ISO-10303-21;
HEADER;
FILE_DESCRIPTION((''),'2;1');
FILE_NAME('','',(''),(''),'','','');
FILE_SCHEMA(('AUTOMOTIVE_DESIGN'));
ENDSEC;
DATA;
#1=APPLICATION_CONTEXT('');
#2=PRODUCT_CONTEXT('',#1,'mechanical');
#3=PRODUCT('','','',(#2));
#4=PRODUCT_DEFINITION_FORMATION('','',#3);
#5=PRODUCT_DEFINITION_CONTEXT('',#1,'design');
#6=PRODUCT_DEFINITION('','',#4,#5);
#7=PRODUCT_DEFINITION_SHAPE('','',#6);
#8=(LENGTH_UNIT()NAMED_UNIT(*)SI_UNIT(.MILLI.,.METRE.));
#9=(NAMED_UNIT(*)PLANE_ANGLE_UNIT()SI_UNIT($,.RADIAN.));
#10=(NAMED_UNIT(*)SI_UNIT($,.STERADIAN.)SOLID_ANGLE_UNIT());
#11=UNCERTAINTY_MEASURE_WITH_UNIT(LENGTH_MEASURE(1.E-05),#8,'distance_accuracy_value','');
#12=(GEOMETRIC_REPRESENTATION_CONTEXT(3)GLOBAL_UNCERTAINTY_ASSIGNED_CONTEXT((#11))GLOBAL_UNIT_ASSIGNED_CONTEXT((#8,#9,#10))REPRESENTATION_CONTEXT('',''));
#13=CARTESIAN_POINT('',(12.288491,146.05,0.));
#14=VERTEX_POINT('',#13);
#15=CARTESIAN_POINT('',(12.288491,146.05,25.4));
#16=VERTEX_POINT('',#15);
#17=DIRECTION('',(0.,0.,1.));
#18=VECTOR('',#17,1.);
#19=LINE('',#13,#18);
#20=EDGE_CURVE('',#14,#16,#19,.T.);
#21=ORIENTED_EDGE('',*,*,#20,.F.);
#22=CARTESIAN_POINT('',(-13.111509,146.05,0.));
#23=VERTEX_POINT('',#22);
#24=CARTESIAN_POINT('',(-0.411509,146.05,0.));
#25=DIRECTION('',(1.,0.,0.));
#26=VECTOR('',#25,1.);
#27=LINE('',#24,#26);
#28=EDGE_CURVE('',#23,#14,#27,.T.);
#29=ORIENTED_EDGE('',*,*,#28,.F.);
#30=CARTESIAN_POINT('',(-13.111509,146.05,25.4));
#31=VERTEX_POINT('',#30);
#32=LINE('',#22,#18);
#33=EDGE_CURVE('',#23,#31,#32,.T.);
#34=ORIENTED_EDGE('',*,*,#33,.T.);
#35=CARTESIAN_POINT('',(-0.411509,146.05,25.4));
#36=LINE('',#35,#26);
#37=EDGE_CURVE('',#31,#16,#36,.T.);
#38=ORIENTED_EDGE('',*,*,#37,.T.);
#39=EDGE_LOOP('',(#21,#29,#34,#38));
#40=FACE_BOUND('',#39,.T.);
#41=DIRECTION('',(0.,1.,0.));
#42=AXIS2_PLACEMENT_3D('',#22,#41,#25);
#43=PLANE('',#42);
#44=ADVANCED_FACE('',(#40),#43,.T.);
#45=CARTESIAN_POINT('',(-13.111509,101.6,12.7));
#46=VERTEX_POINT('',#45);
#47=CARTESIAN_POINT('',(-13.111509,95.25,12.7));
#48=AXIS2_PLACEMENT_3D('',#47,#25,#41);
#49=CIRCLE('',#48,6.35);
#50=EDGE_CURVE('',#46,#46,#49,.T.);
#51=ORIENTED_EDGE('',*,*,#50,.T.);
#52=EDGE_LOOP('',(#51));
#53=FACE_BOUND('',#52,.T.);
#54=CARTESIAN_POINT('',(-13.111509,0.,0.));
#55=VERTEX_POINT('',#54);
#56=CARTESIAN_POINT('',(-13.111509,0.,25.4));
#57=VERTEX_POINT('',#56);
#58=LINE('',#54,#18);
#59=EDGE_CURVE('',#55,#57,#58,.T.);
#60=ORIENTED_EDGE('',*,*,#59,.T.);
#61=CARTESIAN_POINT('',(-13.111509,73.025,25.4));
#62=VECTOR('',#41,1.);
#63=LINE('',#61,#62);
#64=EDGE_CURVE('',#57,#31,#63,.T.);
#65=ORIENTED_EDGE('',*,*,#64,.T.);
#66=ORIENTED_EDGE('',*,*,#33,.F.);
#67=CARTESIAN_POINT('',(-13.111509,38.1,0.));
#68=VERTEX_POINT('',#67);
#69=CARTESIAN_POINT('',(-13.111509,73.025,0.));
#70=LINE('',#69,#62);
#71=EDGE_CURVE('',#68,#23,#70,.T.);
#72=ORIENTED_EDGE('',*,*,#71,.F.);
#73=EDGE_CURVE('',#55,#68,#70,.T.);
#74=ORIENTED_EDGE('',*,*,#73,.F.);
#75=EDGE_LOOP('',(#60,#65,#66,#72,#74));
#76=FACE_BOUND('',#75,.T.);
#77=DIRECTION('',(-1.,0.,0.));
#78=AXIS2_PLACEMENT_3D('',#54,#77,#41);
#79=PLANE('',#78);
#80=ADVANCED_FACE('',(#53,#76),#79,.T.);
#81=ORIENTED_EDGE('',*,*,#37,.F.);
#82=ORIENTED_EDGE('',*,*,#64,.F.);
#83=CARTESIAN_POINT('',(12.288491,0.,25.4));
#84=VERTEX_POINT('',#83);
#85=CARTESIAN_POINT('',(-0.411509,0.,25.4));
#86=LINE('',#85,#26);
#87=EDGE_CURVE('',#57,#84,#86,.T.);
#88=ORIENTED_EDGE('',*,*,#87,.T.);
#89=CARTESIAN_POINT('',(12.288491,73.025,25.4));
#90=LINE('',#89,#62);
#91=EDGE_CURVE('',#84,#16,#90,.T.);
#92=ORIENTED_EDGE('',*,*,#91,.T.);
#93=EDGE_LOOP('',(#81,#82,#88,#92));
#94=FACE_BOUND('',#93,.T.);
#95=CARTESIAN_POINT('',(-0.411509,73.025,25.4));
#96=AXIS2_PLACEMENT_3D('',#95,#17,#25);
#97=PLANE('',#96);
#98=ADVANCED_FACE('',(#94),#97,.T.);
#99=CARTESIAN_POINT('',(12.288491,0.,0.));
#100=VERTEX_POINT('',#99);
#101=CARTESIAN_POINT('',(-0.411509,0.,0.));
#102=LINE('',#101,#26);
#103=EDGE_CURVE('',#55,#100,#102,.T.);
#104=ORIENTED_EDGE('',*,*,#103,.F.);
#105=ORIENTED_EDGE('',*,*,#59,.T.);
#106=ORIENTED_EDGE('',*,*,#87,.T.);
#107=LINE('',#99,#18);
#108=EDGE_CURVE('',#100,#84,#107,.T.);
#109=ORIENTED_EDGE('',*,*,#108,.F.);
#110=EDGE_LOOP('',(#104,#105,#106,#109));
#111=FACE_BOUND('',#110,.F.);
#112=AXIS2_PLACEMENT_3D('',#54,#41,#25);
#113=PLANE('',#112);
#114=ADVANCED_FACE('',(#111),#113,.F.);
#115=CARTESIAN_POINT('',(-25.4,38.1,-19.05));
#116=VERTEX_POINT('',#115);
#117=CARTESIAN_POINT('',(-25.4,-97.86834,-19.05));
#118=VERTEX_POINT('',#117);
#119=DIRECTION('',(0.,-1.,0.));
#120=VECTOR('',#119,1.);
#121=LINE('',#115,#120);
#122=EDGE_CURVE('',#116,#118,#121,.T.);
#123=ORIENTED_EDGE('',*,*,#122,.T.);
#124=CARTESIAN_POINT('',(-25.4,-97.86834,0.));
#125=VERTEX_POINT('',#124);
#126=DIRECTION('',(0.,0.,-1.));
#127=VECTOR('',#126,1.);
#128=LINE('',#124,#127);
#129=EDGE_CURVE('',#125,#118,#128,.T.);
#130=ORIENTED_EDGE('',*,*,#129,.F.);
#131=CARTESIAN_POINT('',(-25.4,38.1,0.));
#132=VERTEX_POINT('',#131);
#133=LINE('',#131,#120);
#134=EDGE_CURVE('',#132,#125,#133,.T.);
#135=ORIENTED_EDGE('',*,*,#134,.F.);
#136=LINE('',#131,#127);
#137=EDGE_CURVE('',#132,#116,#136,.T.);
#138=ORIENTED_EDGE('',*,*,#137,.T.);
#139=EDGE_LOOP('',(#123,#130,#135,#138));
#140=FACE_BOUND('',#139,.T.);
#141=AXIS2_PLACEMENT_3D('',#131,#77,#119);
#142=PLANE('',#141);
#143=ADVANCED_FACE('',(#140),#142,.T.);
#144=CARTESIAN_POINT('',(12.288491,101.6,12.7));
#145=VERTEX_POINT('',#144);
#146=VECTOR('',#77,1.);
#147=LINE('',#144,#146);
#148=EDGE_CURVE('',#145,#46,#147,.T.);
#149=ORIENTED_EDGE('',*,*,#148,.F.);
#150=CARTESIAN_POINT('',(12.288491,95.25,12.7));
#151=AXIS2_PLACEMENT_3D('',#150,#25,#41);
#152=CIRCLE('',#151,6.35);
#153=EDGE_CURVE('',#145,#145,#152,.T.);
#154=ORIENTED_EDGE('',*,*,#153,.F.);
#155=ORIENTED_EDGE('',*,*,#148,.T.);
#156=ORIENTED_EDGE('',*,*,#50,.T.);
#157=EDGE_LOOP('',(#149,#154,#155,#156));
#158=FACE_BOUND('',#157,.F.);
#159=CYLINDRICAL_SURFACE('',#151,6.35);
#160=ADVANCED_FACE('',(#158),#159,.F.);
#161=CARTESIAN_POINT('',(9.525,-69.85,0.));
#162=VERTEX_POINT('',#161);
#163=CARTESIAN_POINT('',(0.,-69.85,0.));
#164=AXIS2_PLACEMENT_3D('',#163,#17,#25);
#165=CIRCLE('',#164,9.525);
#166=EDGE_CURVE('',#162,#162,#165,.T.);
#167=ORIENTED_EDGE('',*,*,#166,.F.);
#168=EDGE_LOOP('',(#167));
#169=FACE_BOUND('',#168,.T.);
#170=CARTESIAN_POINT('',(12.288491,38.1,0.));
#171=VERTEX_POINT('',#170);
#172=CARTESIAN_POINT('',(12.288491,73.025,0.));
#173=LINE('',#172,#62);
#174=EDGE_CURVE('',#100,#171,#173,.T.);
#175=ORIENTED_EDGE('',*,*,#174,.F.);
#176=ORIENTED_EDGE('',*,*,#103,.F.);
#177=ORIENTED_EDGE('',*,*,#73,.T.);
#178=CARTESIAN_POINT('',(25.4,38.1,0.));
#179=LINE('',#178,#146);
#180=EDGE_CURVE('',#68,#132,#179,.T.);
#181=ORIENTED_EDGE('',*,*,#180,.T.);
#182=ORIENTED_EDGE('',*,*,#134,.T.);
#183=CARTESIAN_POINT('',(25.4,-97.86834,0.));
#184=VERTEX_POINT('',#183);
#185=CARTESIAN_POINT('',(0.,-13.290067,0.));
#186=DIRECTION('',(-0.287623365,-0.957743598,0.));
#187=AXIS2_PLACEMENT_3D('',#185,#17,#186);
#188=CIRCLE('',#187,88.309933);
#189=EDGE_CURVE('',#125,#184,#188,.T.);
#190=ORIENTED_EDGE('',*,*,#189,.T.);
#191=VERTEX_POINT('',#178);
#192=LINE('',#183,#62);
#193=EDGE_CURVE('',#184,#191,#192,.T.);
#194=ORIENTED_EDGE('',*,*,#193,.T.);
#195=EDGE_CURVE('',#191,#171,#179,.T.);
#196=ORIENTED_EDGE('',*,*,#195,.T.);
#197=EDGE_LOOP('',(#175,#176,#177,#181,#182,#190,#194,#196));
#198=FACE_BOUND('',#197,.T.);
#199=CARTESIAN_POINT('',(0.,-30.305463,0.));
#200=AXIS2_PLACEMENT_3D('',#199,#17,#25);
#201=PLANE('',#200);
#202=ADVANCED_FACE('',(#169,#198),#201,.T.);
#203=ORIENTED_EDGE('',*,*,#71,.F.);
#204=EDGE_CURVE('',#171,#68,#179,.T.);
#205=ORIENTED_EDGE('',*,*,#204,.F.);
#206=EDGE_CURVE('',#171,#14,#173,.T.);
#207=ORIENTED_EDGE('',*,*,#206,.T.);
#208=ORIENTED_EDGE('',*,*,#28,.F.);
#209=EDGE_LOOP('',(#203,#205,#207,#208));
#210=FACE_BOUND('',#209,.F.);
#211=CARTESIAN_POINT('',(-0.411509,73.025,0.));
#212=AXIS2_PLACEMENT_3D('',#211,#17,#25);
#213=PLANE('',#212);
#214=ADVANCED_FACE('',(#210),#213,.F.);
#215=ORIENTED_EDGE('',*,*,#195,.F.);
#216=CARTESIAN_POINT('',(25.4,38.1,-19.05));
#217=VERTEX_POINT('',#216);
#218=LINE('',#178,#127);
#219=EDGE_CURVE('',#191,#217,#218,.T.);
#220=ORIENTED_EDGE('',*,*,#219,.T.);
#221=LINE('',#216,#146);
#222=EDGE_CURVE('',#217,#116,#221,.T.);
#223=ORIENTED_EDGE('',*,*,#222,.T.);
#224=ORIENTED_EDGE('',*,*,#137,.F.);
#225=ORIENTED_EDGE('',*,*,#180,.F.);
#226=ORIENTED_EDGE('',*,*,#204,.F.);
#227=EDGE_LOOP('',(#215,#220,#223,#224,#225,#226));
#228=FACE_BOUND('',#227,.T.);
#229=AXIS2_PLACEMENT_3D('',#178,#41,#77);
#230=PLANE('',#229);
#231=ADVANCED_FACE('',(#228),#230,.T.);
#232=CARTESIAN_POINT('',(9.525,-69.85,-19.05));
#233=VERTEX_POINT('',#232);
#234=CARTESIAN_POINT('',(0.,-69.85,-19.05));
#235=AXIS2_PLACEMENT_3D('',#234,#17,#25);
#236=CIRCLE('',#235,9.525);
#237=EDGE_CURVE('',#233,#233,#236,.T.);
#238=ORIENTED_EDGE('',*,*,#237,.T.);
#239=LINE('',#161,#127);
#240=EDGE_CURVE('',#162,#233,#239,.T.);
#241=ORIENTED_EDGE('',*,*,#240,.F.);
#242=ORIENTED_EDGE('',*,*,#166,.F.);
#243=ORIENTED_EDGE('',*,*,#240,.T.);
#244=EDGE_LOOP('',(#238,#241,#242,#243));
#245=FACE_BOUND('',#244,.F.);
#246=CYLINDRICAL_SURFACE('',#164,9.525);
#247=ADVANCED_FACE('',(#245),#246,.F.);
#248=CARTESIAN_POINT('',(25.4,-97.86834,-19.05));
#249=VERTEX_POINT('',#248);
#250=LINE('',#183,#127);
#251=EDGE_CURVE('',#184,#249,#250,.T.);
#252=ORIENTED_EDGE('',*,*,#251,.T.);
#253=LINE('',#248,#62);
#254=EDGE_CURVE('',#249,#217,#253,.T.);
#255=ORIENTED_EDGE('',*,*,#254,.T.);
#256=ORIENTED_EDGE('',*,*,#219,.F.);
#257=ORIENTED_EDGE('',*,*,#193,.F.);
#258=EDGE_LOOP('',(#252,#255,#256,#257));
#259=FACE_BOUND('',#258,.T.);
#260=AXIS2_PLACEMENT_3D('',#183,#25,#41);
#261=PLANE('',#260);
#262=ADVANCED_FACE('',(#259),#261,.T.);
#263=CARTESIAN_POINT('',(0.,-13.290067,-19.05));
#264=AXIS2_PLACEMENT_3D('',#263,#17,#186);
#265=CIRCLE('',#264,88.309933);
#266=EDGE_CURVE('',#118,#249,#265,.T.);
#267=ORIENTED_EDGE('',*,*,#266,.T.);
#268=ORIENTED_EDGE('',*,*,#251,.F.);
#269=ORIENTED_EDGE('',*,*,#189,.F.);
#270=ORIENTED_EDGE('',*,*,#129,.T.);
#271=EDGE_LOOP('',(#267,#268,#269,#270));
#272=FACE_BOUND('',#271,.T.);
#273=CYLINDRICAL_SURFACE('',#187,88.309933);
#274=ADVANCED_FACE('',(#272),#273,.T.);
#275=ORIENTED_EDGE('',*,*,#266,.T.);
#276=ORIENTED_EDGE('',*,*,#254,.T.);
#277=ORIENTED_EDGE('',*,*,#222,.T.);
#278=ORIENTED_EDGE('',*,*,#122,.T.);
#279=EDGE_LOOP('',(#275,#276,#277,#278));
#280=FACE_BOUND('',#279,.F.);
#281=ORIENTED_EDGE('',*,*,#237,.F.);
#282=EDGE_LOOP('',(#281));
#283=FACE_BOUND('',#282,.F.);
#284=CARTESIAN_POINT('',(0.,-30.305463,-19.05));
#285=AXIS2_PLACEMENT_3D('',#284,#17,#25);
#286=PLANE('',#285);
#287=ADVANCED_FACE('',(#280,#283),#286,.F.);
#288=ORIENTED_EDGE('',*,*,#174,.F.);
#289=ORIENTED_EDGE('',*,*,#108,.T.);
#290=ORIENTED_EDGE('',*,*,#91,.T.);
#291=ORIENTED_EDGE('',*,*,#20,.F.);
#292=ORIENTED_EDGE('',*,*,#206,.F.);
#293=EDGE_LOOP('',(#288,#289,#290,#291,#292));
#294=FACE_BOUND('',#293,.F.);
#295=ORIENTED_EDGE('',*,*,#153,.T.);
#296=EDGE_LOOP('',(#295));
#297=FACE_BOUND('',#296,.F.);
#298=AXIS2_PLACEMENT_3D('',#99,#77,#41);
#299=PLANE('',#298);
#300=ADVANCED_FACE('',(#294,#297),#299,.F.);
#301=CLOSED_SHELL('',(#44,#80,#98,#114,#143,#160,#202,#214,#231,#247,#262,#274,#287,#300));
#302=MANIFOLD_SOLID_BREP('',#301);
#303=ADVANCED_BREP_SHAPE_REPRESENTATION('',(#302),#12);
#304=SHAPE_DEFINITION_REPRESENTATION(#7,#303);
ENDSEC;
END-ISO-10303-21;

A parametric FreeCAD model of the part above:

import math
import FreeCAD as App
import Part
import Sketcher
Q = App.Units.Quantity

doc = App.newDocument("Part")
body = doc.addObject("PartDesign::Body", "Body")

# Sketch on XY plane
sketch1 = body.newObject("Sketcher::SketchObject", "Sketch")
sketch1.AttachmentSupport = (doc.getObject("XY_Plane"), [""])
sketch1.MapMode = "FlatFace"
sketch1.addGeometry(Part.LineSegment(App.Vector(-13, 146, 0), App.Vector(-13, 0, 0)), False)
sketch1.addGeometry(Part.LineSegment(App.Vector(-13, 0, 0), App.Vector(12, 0, 0)), False)
sketch1.addGeometry(Part.LineSegment(App.Vector(12, 0, 0), App.Vector(12, 146, 0)), False)
sketch1.addGeometry(Part.LineSegment(App.Vector(12, 146, 0), App.Vector(-13, 146, 0)), False)
sketch1.addConstraint(Sketcher.Constraint("Coincident", 0, 2, 1, 1))
sketch1.addConstraint(Sketcher.Constraint("Coincident", 1, 2, 2, 1))
sketch1.addConstraint(Sketcher.Constraint("Coincident", 2, 2, 3, 1))
sketch1.addConstraint(Sketcher.Constraint("Coincident", 3, 2, 0, 1))
sketch1.addConstraint(Sketcher.Constraint("Vertical", 0))
sketch1.addConstraint(Sketcher.Constraint("Horizontal", 1))
sketch1.addConstraint(Sketcher.Constraint("Vertical", 2))
sketch1.addConstraint(Sketcher.Constraint("Horizontal", 3))
sketch1.addConstraint(Sketcher.Constraint("PointOnObject", 0, 2, -1))
sketch1.addConstraint(Sketcher.Constraint("DistanceX", 1, 1, 1, 2, Q("1 in")))
sketch1.addConstraint(Sketcher.Constraint("DistanceY", 0, 2, 0, 1, Q("5.75 in")))
sketch1.addConstraint(Sketcher.Constraint("DistanceX", 0, 2, -1, 1, Q("13.111509 mm")))
pad1 = body.newObject("PartDesign::Pad", "Pad")
pad1.Profile = sketch1
pad1.Length = Q("1 in")

# Sketch on XY plane
sketch2 = body.newObject("Sketcher::SketchObject", "Sketch001")
sketch2.AttachmentSupport = (doc.getObject("XY_Plane"), [""])
sketch2.MapMode = "FlatFace"
sketch2.addGeometry(Part.LineSegment(App.Vector(25, 38, 0), App.Vector(-25, 38, 0)), False)
sketch2.addGeometry(Part.LineSegment(App.Vector(-25, 38, 0), App.Vector(-25, -98, 0)), False)
sketch2.addGeometry(Part.ArcOfCircle(Part.Circle(App.Vector(0, -13, 0), App.Vector(0, 0, 1), 88), math.radians(-107), math.radians(-73)), False)
sketch2.addGeometry(Part.LineSegment(App.Vector(25, -98, 0), App.Vector(25, 38, 0)), False)
sketch2.addConstraint(Sketcher.Constraint("Coincident", 0, 2, 1, 1))
sketch2.addConstraint(Sketcher.Constraint("Coincident", 1, 2, 2, 1))
sketch2.addConstraint(Sketcher.Constraint("Coincident", 2, 2, 3, 1))
sketch2.addConstraint(Sketcher.Constraint("Coincident", 3, 2, 0, 1))
sketch2.addConstraint(Sketcher.Constraint("Horizontal", 0))
sketch2.addConstraint(Sketcher.Constraint("Vertical", 1))
sketch2.addConstraint(Sketcher.Constraint("Vertical", 3))
sketch2.addConstraint(Sketcher.Constraint("Symmetric", 1, 2, 2, 2, -2))
sketch2.addConstraint(Sketcher.Constraint("DistanceX", 0, 2, 0, 1, Q("2 in")))
sketch2.addConstraint(Sketcher.Constraint("DistanceY", -1, 1, 0, 2, Q("1.5 in")))
sketch2.addConstraint(Sketcher.Constraint("Radius", 2, Q("88.309933 mm")))
sketch2.addConstraint(Sketcher.Constraint("DistanceY", 1, 2, 1, 1, Q("135.96834 mm")))
pad2 = body.newObject("PartDesign::Pad", "Pad001")
pad2.Profile = sketch2
pad2.Length = Q("0.75 in")
pad2.Reversed = True

# Sketch on YZ plane
sketch3 = body.newObject("Sketcher::SketchObject", "Sketch002")
sketch3.AttachmentSupport = (doc.getObject("YZ_Plane"), [""])
sketch3.MapMode = "FlatFace"
sketch3.AttachmentOffset = App.Placement(App.Vector(0, 0, 12.288491), App.Rotation())
sketch3.addGeometry(Part.Circle(App.Vector(95, 13, 0), App.Vector(0, 0, 1), 6), False)
sketch3.addConstraint(Sketcher.Constraint("Diameter", 0, Q("0.5 in")))
sketch3.addConstraint(Sketcher.Constraint("DistanceY", -1, 1, 0, 3, Q("0.5 in")))
sketch3.addConstraint(Sketcher.Constraint("DistanceX", -1, 1, 0, 3, Q("3.75 in")))
pocket1 = body.newObject("PartDesign::Pocket", "Pocket")
pocket1.Profile = sketch3
pocket1.Type = "ThroughAll"

# Sketch on XY plane
sketch4 = body.newObject("Sketcher::SketchObject", "Sketch003")
sketch4.AttachmentSupport = (doc.getObject("XY_Plane"), [""])
sketch4.MapMode = "FlatFace"
sketch4.addGeometry(Part.Circle(App.Vector(0, -70, 0), App.Vector(0, 0, 1), 10), False)
sketch4.addConstraint(Sketcher.Constraint("PointOnObject", 0, 3, -2))
sketch4.addConstraint(Sketcher.Constraint("Diameter", 0, Q("0.75 in")))
sketch4.addConstraint(Sketcher.Constraint("DistanceY", 0, 3, -1, 1, Q("2.75 in")))
pocket2 = body.newObject("PartDesign::Pocket", "Pocket001")
pocket2.Profile = sketch4
pocket2.Length = Q("1 in")

doc.recompute()
